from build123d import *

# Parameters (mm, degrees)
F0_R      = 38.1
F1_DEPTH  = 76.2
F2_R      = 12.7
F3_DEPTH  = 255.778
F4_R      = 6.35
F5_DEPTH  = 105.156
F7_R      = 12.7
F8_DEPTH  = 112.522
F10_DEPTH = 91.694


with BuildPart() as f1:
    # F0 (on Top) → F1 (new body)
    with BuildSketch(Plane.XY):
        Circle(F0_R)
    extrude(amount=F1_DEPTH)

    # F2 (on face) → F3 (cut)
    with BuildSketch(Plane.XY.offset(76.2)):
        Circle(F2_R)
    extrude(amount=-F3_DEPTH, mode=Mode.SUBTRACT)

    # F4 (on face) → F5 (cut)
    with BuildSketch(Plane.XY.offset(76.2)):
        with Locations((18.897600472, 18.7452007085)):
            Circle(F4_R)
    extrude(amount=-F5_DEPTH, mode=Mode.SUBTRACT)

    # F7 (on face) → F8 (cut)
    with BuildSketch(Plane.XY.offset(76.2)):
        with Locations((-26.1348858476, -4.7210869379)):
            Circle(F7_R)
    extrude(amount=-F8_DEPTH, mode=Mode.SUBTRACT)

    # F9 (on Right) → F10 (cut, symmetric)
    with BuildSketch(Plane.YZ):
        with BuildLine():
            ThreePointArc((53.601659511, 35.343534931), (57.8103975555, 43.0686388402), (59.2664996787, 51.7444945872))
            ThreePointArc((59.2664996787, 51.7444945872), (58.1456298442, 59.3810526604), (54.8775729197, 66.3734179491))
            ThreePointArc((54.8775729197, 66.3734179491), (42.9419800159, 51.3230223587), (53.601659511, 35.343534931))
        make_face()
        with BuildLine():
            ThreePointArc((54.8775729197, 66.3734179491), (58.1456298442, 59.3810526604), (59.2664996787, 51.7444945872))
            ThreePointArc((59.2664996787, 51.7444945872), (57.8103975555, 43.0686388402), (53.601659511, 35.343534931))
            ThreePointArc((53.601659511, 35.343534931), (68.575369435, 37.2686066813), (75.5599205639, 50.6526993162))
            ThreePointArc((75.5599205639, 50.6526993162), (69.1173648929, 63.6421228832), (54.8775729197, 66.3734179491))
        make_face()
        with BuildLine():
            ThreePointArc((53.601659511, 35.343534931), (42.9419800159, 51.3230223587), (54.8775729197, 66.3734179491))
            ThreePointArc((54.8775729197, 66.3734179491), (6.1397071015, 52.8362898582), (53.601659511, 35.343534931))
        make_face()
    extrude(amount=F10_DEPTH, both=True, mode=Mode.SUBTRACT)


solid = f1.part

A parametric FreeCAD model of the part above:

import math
import FreeCAD as App
import Part
import Sketcher
from FreeCAD import Vector
Q = App.Units.Quantity

doc = App.newDocument("Part")
body = doc.addObject("PartDesign::Body", "Body")

sketch1 = body.newObject("Sketcher::SketchObject", "Sketch")
sketch1.AttachmentSupport = (doc.getObject("XY_Plane"), [""])
sketch1.MapMode = "FlatFace"
sketch1.addGeometry(Part.Circle(Vector(0, 0, 0), Vector(0, 0, 1), 38.1), False)
sketch1.addConstraint(Sketcher.Constraint("Coincident", 0, 3, -1, 1))
sketch1.addConstraint(Sketcher.Constraint("Diameter", 0, Q("3 in")))
pad1 = body.newObject("PartDesign::Pad", "Pad")
pad1.Profile = sketch1
pad1.Length = Q("3 in")

sketch2 = body.newObject("Sketcher::SketchObject", "Sketch001")
sketch2.AttachmentSupport = (doc.getObject("XY_Plane"), [""])
sketch2.MapMode = "FlatFace"
sketch2.AttachmentOffset = App.Placement(Vector(0, 0, 3 * 25.4), App.Rotation())
sketch2.addGeometry(Part.Circle(Vector(0, 0, 0), Vector(0, 0, 1), 12.7), False)
sketch2.addConstraint(Sketcher.Constraint("Coincident", 0, 3, -1, 1))
sketch2.addConstraint(Sketcher.Constraint("Diameter", 0, Q("1 in")))
pocket1 = body.newObject("PartDesign::Pocket", "Pocket")
pocket1.Profile = sketch2
pocket1.Length = Q("10.07 in")

sketch3 = body.newObject("Sketcher::SketchObject", "Sketch002")
sketch3.AttachmentSupport = (doc.getObject("XY_Plane"), [""])
sketch3.MapMode = "FlatFace"
sketch3.AttachmentOffset = App.Placement(Vector(0, 0, 3 * 25.4), App.Rotation())
sketch3.addGeometry(Part.Circle(Vector(18.8976, 18.745201, 0), Vector(0, 0, 1), 6.35), False)
sketch3.addConstraint(Sketcher.Constraint("Diameter", 0, Q("0.5 in")))
sketch3.addConstraint(Sketcher.Constraint("DistanceX", -1, 1, 0, 3, Q("0.744 in")))
sketch3.addConstraint(Sketcher.Constraint("DistanceY", -1, 1, 0, 3, Q("0.738 in")))
pocket2 = body.newObject("PartDesign::Pocket", "Pocket001")
pocket2.Profile = sketch3
pocket2.Length = Q("4.14 in")

sketch4 = body.newObject("Sketcher::SketchObject", "Sketch003")
sketch4.AttachmentSupport = (doc.getObject("XY_Plane"), [""])
sketch4.MapMode = "FlatFace"
sketch4.AttachmentOffset = App.Placement(Vector(0, 0, 3 * 25.4), App.Rotation())
sketch4.addGeometry(Part.Circle(Vector(-26.134886, -4.721087, 0), Vector(0, 0, 1), 12.7), False)
sketch4.addConstraint(Sketcher.Constraint("Diameter", 0, Q("1 in")))
sketch4.addConstraint(Sketcher.Constraint("DistanceX", 0, 3, -1, 1, 26.134886))
sketch4.addConstraint(Sketcher.Constraint("DistanceY", 0, 3, -1, 1, 4.721087))
pocket3 = body.newObject("PartDesign::Pocket", "Pocket002")
pocket3.Profile = sketch4
pocket3.Length = Q("4.43 in")

sketch5 = body.newObject("Sketcher::SketchObject", "Sketch004")
sketch5.AttachmentSupport = (doc.getObject("YZ_Plane"), [""])
sketch5.MapMode = "FlatFace"
sketch5.addGeometry(Part.ArcOfCircle(Part.Circle(Vector(59.244062, 50.652699, 0), Vector(0, 0, 1), 16.315858), math.radians(-110.232058), math.radians(105.522836)), False)
sketch5.addGeometry(Part.ArcOfCircle(Part.Circle(Vector(32.691885, 51.744495, 0), Vector(0, 0, 1), 26.574615), math.radians(33.400283), math.radians(321.890495)), False)
sketch5.addConstraint(Sketcher.Constraint("Coincident", 0, 1, 1, 2))
sketch5.addConstraint(Sketcher.Constraint("Coincident", 1, 1, 0, 2))
sketch5.addConstraint(Sketcher.Constraint("Radius", 0, 16.315858))
sketch5.addConstraint(Sketcher.Constraint("Radius", 1, 26.574615))
sketch5.addConstraint(Sketcher.Constraint("DistanceY", -1, 1, 0, 3, 50.652699))
sketch5.addConstraint(Sketcher.Constraint("DistanceX", -1, 1, 0, 1, 53.60166))
sketch5.addConstraint(Sketcher.Constraint("DistanceY", 0, 1, 1, 3, 16.40096))
sketch5.addConstraint(Sketcher.Constraint("DistanceX", 1, 1, 0, 3, 4.36649))
pocket4 = body.newObject("PartDesign::Pocket", "Pocket003")
pocket4.Profile = sketch5
pocket4.Length = Q("7.22 in")
pocket4.Midplane = True

doc.recompute()
